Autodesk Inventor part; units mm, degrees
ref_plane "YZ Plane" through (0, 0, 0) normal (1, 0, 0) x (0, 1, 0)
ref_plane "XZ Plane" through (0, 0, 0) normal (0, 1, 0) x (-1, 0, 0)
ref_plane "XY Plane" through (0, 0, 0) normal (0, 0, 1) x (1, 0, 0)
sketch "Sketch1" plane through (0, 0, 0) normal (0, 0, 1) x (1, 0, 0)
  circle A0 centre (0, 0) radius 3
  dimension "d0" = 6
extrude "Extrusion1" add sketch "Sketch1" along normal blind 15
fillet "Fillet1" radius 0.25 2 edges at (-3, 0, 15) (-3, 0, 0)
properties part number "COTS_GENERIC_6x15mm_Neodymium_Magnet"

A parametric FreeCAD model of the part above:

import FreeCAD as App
import Part
import Sketcher
from FreeCAD import Vector
Q = App.Units.Quantity


def edges_at(feature, points):
    """Names of the edges that pass closest to the given points."""
    edges = feature.Shape.Edges
    near = lambda p: min(range(len(edges)), key=lambda i: edges[i].distToShape(Part.Vertex(*p))[0])
    return sorted({f"Edge{near(p) + 1}" for p in points})

doc = App.newDocument("Part")
body = doc.addObject("PartDesign::Body", "Body")

# Sketch on XY plane
sketch1 = doc.addObject("Sketcher::SketchObject", "Sketch")
body.addObject(sketch1)
sketch1.AttachmentSupport = (doc.XY_Plane, [""])
sketch1.MapMode = "FlatFace"
sketch1.addGeometry(Part.Circle(Vector(0, 0, 0), Vector(0, 0, 1), 3), False)
sketch1.addConstraint([
    Sketcher.Constraint("Coincident", 0, 3, -1, 1),
    Sketcher.Constraint("Diameter", 0, Q("6 mm")),
])
pad1 = doc.addObject("PartDesign::Pad", "Pad")
body.addObject(pad1)
pad1.Profile = sketch1
pad1.Length = 15
doc.recompute()

fillet = doc.addObject("PartDesign::Fillet", "Fillet")
body.addObject(fillet)
fillet.Base = (pad1, edges_at(pad1, [(-3, 0, 15), (-3, 0, 0)]))
fillet.Radius = 0.25

doc.recompute()
